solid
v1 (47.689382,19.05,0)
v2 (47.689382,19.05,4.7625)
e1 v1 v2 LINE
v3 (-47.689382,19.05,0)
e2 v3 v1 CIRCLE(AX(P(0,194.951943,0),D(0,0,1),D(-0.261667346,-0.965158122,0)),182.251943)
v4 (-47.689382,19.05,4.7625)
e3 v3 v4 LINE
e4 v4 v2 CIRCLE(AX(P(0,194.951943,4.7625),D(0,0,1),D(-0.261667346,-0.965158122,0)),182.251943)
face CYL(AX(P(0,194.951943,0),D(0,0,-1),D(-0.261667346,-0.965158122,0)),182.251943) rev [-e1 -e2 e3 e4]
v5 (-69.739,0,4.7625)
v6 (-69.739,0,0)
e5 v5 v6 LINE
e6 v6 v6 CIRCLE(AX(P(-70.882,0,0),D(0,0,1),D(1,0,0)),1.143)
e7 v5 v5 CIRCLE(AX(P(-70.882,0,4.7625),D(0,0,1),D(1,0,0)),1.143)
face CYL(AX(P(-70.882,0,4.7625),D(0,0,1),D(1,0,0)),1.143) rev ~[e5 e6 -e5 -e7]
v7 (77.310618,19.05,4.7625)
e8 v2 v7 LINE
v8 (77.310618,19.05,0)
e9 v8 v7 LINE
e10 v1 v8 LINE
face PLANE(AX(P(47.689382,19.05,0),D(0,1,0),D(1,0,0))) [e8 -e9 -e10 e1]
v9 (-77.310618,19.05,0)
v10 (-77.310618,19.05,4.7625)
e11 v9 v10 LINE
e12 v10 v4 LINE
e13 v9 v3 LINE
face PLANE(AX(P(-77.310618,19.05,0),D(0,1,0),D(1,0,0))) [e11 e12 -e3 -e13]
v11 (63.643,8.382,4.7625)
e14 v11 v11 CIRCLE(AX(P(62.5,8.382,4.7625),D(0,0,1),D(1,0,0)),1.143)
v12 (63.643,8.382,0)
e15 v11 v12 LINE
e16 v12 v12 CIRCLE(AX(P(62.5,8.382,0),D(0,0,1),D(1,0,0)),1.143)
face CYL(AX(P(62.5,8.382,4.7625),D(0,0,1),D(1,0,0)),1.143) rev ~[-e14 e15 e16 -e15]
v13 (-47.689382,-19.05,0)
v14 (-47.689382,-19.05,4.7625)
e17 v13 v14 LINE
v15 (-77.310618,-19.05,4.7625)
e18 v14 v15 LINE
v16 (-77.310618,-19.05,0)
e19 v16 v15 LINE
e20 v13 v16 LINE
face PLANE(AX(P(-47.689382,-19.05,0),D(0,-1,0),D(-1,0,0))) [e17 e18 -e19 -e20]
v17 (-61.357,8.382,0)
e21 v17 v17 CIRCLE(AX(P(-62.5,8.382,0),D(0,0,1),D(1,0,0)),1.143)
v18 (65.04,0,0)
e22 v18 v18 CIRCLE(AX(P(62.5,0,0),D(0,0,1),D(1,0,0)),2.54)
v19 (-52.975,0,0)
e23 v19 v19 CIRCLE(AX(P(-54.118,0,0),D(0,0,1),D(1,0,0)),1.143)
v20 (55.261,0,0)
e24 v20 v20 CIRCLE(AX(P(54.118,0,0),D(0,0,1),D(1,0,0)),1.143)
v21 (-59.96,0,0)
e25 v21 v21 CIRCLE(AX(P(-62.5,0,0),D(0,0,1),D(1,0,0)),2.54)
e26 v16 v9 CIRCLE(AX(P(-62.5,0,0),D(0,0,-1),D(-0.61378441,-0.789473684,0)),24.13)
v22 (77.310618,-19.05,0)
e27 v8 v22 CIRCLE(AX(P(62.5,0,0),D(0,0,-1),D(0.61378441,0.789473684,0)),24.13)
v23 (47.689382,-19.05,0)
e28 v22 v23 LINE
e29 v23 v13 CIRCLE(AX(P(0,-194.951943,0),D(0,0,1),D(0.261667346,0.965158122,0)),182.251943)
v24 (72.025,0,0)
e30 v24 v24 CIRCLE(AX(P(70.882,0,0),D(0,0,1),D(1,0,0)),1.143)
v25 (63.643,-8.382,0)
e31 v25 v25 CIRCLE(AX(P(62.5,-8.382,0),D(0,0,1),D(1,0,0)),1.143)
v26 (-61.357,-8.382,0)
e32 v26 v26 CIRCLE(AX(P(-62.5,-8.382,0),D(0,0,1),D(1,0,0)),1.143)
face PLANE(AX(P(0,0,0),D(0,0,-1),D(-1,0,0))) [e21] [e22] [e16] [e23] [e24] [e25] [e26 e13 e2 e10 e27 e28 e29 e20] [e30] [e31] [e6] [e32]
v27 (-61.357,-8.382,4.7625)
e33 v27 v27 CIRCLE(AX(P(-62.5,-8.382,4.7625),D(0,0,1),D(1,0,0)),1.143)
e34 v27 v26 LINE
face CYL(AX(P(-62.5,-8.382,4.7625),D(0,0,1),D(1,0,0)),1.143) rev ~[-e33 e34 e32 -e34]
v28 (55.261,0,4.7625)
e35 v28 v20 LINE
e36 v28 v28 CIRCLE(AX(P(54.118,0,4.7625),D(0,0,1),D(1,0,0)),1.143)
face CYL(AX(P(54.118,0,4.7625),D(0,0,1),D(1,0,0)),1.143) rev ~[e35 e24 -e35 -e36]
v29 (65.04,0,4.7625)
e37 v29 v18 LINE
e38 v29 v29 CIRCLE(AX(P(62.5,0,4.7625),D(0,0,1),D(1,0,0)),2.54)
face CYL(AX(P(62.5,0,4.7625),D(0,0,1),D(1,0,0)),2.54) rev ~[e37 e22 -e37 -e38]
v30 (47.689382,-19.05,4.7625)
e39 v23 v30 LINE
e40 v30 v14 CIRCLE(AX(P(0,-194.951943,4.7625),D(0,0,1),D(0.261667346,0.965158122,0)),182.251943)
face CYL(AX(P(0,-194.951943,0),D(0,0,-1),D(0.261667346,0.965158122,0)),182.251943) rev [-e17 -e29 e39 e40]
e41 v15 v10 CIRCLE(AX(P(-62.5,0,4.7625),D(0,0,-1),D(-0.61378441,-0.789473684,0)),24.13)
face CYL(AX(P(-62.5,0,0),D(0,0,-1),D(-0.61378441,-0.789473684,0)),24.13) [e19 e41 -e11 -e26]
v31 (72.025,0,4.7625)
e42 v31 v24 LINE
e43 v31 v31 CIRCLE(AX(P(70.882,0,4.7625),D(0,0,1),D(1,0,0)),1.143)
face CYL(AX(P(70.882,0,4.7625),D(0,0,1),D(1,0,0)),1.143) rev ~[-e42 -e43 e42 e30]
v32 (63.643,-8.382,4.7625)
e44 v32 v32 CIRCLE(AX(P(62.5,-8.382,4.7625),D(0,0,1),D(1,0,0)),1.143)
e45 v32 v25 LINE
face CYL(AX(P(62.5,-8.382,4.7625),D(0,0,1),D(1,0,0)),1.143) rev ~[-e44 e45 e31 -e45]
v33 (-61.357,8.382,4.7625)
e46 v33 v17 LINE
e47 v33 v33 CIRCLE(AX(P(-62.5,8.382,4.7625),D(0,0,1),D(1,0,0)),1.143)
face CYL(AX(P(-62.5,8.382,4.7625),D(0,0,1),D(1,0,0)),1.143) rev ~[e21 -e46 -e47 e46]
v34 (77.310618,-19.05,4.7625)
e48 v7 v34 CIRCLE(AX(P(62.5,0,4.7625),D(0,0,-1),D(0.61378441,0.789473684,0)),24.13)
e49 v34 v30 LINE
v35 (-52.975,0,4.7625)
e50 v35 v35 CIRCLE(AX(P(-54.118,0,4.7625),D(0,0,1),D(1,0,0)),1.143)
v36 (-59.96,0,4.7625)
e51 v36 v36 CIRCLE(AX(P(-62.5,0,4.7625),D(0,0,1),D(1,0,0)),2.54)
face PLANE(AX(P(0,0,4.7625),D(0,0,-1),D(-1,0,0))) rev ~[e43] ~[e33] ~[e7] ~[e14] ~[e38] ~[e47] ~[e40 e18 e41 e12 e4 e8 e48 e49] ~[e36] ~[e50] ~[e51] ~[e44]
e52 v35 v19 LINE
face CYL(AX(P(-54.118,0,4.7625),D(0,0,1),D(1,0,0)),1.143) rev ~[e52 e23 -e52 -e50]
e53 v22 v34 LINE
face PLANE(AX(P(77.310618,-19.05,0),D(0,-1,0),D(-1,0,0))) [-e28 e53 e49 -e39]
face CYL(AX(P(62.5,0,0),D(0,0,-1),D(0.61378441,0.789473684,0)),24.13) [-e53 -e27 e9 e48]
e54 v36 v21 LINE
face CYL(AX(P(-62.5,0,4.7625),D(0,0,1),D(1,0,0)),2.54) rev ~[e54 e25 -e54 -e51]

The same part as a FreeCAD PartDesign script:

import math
import FreeCAD as App
import Part
import Sketcher
from FreeCAD import Vector
Q = App.Units.Quantity

doc = App.newDocument("Part")
body = doc.addObject("PartDesign::Body", "Body")

# Sketch on XY plane
sketch1 = body.newObject("Sketcher::SketchObject", "Sketch")
sketch1.AttachmentSupport = (doc.getObject("XY_Plane"), [""])
sketch1.MapMode = "FlatFace"
sketch1.addGeometry([
    Part.LineSegment(Vector(-48, 19, 0), Vector(-77, 19, 0)),  # 0
    Part.ArcOfCircle(Part.Circle(Vector(-62, 0, 0), Vector(0, 0, 1), 24), math.radians(128), math.radians(232)),  # 1
    Part.LineSegment(Vector(-77, -19, 0), Vector(-48, -19, 0)),  # 2
    Part.ArcOfCircle(Part.Circle(Vector(0, -195, 0), Vector(0, 0, 1), 182), math.radians(75), math.radians(105)),  # 3
    Part.LineSegment(Vector(48, -19, 0), Vector(77, -19, 0)),  # 4
    Part.ArcOfCircle(Part.Circle(Vector(62, 0, 0), Vector(0, 0, 1), 24), math.radians(-52), math.radians(52)),  # 5
    Part.LineSegment(Vector(77, 19, 0), Vector(48, 19, 0)),  # 6
    Part.ArcOfCircle(Part.Circle(Vector(0, 195, 0), Vector(0, 0, 1), 182), math.radians(-105), math.radians(-75)),  # 7
], False)
sketch1.addConstraint([
    Sketcher.Constraint("Coincident", 0, 2, 1, 1),
    Sketcher.Constraint("Coincident", 1, 2, 2, 1),
    Sketcher.Constraint("Coincident", 2, 2, 3, 2),
    Sketcher.Constraint("Coincident", 3, 1, 4, 1),
    Sketcher.Constraint("Coincident", 4, 2, 5, 1),
    Sketcher.Constraint("Coincident", 5, 2, 6, 1),
    Sketcher.Constraint("Coincident", 6, 2, 7, 2),
    Sketcher.Constraint("Coincident", 7, 1, 0, 1),
    Sketcher.Constraint("Horizontal", 0),
    Sketcher.Constraint("Horizontal", 2),
    Sketcher.Constraint("Horizontal", 4),
    Sketcher.Constraint("Horizontal", 6),
    Sketcher.Constraint("Equal", 1, 5),
    Sketcher.Constraint("Equal", 3, 7),
    Sketcher.Constraint("Symmetric", 1, 3, 5, 3, -1, 1),
    Sketcher.Constraint("Symmetric", 3, 3, 7, 3, -1, 1),
    Sketcher.Constraint("Symmetric", 2, 2, 3, 1, -2),
    Sketcher.Constraint("Symmetric", 0, 2, 5, 2, -2),
    Sketcher.Constraint("Vertical", 0, 2, 1, 2),
    Sketcher.Constraint("Radius", 1, Q("0.95 in")),
    Sketcher.Constraint("DistanceY", 1, 2, 0, 2, Q("1.5 in")),
    Sketcher.Constraint("Radius", 3, 182.251943),
    Sketcher.Constraint("DistanceX", 1, 3, -1, 1, 62.5),
    Sketcher.Constraint("DistanceX", 1, 2, 3, 1, 125.0),
])
pad1 = body.newObject("PartDesign::Pad", "Pad")
pad1.Profile = sketch1
pad1.Length = Q("0.1875 in")

# Sketch on XY plane
sketch2 = body.newObject("Sketcher::SketchObject", "Sketch001")
sketch2.AttachmentSupport = (doc.getObject("XY_Plane"), [""])
sketch2.MapMode = "FlatFace"
sketch2.AttachmentOffset = App.Placement(Vector(0, 0, 0.1875 * 25.4), App.Rotation())
sketch2.addGeometry([
    Part.Circle(Vector(-62.5, 0, 0), Vector(0, 0, 1), 2.5),  # 0
    Part.Circle(Vector(-54.1, 0, 0), Vector(0, 0, 1), 1.1),  # 1
    Part.Circle(Vector(-62.5, -8.4, 0), Vector(0, 0, 1), 1.1),  # 2
    Part.Circle(Vector(-70.9, 0, 0), Vector(0, 0, 1), 1.1),  # 3
    Part.Circle(Vector(-62.5, 8.4, 0), Vector(0, 0, 1), 1.1),  # 4
    Part.Circle(Vector(62.5, 0, 0), Vector(0, 0, 1), 2.5),  # 5
    Part.Circle(Vector(70.9, 0, 0), Vector(0, 0, 1), 1.1),  # 6
    Part.Circle(Vector(62.5, -8.4, 0), Vector(0, 0, 1), 1.1),  # 7
    Part.Circle(Vector(54.1, 0, 0), Vector(0, 0, 1), 1.1),  # 8
    Part.Circle(Vector(62.5, 8.4, 0), Vector(0, 0, 1), 1.1),  # 9
], False)
sketch2.addConstraint([
    Sketcher.Constraint("Equal", 1, 2),
    Sketcher.Constraint("Equal", 2, 3),
    Sketcher.Constraint("Equal", 3, 4),
    Sketcher.Constraint("Equal", 0, 5),
    Sketcher.Constraint("Equal", 4, 6),
    Sketcher.Constraint("Equal", 6, 7),
    Sketcher.Constraint("Equal", 7, 8),
    Sketcher.Constraint("Equal", 8, 9),
    Sketcher.Constraint("Symmetric", 0, 3, 5, 3, -1, 1),
    Sketcher.Constraint("Symmetric", 3, 3, 6, 3, -1, 1),
    Sketcher.Constraint("Symmetric", 4, 3, 7, 3, -1, 1),
    Sketcher.Constraint("Symmetric", 1, 3, 8, 3, -1, 1),
    Sketcher.Constraint("Symmetric", 2, 3, 9, 3, -1, 1),
    Sketcher.Constraint("Symmetric", 2, 3, 7, 3, -2),
    Sketcher.Constraint("PointOnObject", 0, 3, -1),
    Sketcher.Constraint("PointOnObject", 1, 3, -1),
    Sketcher.Constraint("PointOnObject", 3, 3, -1),
    Sketcher.Constraint("Vertical", 0, 3, 2, 3),
    Sketcher.Constraint("Diameter", 0, Q("0.2 in")),
    Sketcher.Constraint("Diameter", 1, Q("0.09 in")),
    Sketcher.Constraint("DistanceY", 2, 3, -1, 1, Q("0.33 in")),
    Sketcher.Constraint("DistanceX", 0, 3, 1, 3, Q("0.33 in")),
    Sketcher.Constraint("DistanceX", 3, 3, 0, 3, Q("0.33 in")),
    Sketcher.Constraint("DistanceX", 0, 3, -1, 1, 62.5),
])
pocket1 = body.newObject("PartDesign::Pocket", "Pocket")
pocket1.Profile = sketch2
pocket1.Type = "ThroughAll"

doc.recompute()
